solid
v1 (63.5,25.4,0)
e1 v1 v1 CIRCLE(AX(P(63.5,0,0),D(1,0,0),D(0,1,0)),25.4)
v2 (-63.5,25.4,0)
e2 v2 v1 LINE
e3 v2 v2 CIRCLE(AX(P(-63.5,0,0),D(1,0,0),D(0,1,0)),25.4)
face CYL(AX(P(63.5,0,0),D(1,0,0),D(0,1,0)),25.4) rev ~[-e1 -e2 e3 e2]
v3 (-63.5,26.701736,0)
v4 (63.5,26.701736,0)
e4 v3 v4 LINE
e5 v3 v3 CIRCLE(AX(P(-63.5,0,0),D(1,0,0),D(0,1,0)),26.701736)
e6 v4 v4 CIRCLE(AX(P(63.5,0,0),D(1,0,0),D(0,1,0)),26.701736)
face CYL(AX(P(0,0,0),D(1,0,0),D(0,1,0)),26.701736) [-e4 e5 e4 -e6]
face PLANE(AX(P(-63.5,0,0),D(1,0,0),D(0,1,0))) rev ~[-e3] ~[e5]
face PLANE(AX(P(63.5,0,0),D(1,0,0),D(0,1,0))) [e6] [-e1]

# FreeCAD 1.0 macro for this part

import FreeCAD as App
import Part
import Sketcher
from FreeCAD import Vector
Q = App.Units.Quantity

doc = App.newDocument("Part")
body = doc.addObject("PartDesign::Body", "Body")

sketch1 = body.newObject("Sketcher::SketchObject", "Sketch")
sketch1.AttachmentSupport = (doc.getObject("YZ_Plane"), [""])
sketch1.MapMode = "FlatFace"
sketch1.addGeometry(Part.Circle(Vector(0, 0, 0), Vector(0, 0, 1), 26.701736), False)
sketch1.addConstraint(Sketcher.Constraint("Coincident", 0, 3, -1, 1))
sketch1.addConstraint(Sketcher.Constraint("Diameter", 0, 53.403472))
pad1 = body.newObject("PartDesign::Pad", "Pad")
pad1.Profile = sketch1
pad1.Length = Q("5 in")
pad1.Midplane = True

sketch2 = body.newObject("Sketcher::SketchObject", "Sketch001")
sketch2.AttachmentSupport = (doc.getObject("YZ_Plane"), [""])
sketch2.MapMode = "FlatFace"
sketch2.AttachmentOffset = App.Placement(Vector(0, 0, 2.5 * 25.4), App.Rotation())
sketch2.addGeometry(Part.Circle(Vector(0, 0, 0), Vector(0, 0, 1), 25.4), False)
sketch2.addConstraint(Sketcher.Constraint("Coincident", 0, 3, -1, 1))
sketch2.addConstraint(Sketcher.Constraint("Diameter", 0, Q("2 in")))
pocket1 = body.newObject("PartDesign::Pocket", "Pocket")
pocket1.Profile = sketch2
pocket1.Length = Q("12 in")
pocket1.Midplane = True

doc.recompute()
